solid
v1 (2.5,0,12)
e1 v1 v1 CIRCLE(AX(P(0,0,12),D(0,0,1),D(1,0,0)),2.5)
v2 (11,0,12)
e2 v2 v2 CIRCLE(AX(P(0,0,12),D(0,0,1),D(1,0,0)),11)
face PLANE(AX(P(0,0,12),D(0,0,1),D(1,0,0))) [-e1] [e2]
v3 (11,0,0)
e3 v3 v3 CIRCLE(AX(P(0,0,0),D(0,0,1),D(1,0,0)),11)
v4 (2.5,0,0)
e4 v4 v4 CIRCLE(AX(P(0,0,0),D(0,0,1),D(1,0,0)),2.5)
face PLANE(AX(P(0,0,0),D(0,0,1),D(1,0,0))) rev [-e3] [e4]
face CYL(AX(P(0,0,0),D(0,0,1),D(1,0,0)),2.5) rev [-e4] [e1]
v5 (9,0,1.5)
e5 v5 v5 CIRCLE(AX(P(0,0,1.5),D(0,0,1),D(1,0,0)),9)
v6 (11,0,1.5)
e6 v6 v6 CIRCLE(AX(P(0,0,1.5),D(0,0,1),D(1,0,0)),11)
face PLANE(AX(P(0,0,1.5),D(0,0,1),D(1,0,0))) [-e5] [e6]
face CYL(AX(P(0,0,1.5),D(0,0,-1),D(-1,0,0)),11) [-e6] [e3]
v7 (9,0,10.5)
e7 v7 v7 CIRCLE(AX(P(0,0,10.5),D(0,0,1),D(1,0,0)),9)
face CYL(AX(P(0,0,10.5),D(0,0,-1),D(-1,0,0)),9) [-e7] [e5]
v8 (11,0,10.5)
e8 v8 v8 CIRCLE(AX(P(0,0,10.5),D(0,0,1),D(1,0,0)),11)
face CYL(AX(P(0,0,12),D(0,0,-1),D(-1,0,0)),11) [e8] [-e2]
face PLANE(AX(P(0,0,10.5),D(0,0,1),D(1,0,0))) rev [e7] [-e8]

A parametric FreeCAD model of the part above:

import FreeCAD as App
import Part
import Sketcher

doc = App.newDocument("Part")
body = doc.addObject("PartDesign::Body", "Body")

# Sketch on XY plane
sketch1 = doc.addObject("Sketcher::SketchObject", "Sketch")
body.addObject(sketch1)
sketch1.AttachmentSupport = (doc.XY_Plane, [""])
sketch1.MapMode = "FlatFace"
sketch1.addGeometry(Part.Circle(App.Vector(0, 0, 0), App.Vector(0, 0, 1), 11), False)
sketch1.addConstraint([
    Sketcher.Constraint("Coincident", 0, 3, -1, 1),
    Sketcher.Constraint("Diameter", 0, 22.0),
])
pad1 = doc.addObject("PartDesign::Pad", "Pad")
body.addObject(pad1)
pad1.Profile = sketch1
pad1.Length = 1.5

# Sketch on XY plane
sketch2 = doc.addObject("Sketcher::SketchObject", "Sketch001")
body.addObject(sketch2)
sketch2.AttachmentSupport = (doc.XY_Plane, [""])
sketch2.MapMode = "FlatFace"
sketch2.AttachmentOffset = App.Placement(App.Vector(0, 0, 1.5), App.Rotation())
sketch2.addGeometry(Part.Circle(App.Vector(0, 0, 0), App.Vector(0, 0, 1), 9), False)
sketch2.addConstraint([
    Sketcher.Constraint("Coincident", 0, 3, -1, 1),
    Sketcher.Constraint("Diameter", 0, 18.0),
])
pad2 = doc.addObject("PartDesign::Pad", "Pad001")
body.addObject(pad2)
pad2.Profile = sketch2
pad2.Length = 9

# Sketch on XY plane
sketch3 = doc.addObject("Sketcher::SketchObject", "Sketch002")
body.addObject(sketch3)
sketch3.AttachmentSupport = (doc.XY_Plane, [""])
sketch3.MapMode = "FlatFace"
sketch3.AttachmentOffset = App.Placement(App.Vector(0, 0, 10.5), App.Rotation())
sketch3.addGeometry(Part.Circle(App.Vector(0, 0, 0), App.Vector(0, 0, 1), 11), False)
sketch3.addConstraint([
    Sketcher.Constraint("Coincident", 0, 3, -1, 1),
    Sketcher.Constraint("Diameter", 0, 22.0),
])
pad3 = doc.addObject("PartDesign::Pad", "Pad002")
body.addObject(pad3)
pad3.Profile = sketch3
pad3.Length = 1.5

# Sketch on XY plane
sketch4 = doc.addObject("Sketcher::SketchObject", "Sketch003")
body.addObject(sketch4)
sketch4.AttachmentSupport = (doc.XY_Plane, [""])
sketch4.MapMode = "FlatFace"
sketch4.AttachmentOffset = App.Placement(App.Vector(0, 0, 12), App.Rotation())
sketch4.addGeometry(Part.Circle(App.Vector(0, 0, 0), App.Vector(0, 0, 1), 2.5), False)
sketch4.addConstraint([
    Sketcher.Constraint("Coincident", 0, 3, -1, 1),
    Sketcher.Constraint("Diameter", 0, 5.0),
])
pocket1 = doc.addObject("PartDesign::Pocket", "Pocket")
body.addObject(pocket1)
pocket1.Profile = sketch4
pocket1.Type = "ThroughAll"
pocket1.Midplane = True

doc.recompute()
